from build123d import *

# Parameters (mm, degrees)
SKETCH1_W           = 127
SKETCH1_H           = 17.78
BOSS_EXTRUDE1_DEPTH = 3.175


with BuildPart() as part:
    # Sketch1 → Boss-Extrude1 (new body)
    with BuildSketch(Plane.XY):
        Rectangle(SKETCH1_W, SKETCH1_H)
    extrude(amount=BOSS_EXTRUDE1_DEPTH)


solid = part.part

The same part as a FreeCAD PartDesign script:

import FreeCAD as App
import Part
import Sketcher
Q = App.Units.Quantity


def add_polygon(sketch, points):
    """Adds a closed chain of lines whose ends are joined by coincident constraints."""
    first, n = sketch.GeometryCount, len(points)
    for a, b in zip(points, points[1:] + points[:1]):
        sketch.addGeometry(Part.LineSegment(App.Vector(*a, 0), App.Vector(*b, 0)), False)
    for i in range(n):
        sketch.addConstraint(Sketcher.Constraint("Coincident", first + i, 2, first + (i + 1) % n, 1))

doc = App.newDocument("Part")
body = doc.addObject("PartDesign::Body", "Body")

# Sketch on XY plane
sketch1 = body.newObject("Sketcher::SketchObject", "Sketch")
sketch1.AttachmentSupport = (doc.getObject("XY_Plane"), [""])
sketch1.MapMode = "FlatFace"
add_polygon(sketch1, [(-64, 9), (-64, -9), (64, -9), (64, 9)])  # lines 0-3
sketch1.addConstraint([
    Sketcher.Constraint("Vertical", 0),
    Sketcher.Constraint("Horizontal", 1),
    Sketcher.Constraint("Vertical", 2),
    Sketcher.Constraint("Horizontal", 3),
    Sketcher.Constraint("Symmetric", 0, 2, 2, 2, -1, 1),
    Sketcher.Constraint("DistanceX", 1, 1, 1, 2, Q("5 in")),
    Sketcher.Constraint("DistanceY", 0, 2, 0, 1, Q("0.7 in")),
])
pad1 = body.newObject("PartDesign::Pad", "Pad")
pad1.Profile = sketch1
pad1.Length = Q("0.125 in")

doc.recompute()
